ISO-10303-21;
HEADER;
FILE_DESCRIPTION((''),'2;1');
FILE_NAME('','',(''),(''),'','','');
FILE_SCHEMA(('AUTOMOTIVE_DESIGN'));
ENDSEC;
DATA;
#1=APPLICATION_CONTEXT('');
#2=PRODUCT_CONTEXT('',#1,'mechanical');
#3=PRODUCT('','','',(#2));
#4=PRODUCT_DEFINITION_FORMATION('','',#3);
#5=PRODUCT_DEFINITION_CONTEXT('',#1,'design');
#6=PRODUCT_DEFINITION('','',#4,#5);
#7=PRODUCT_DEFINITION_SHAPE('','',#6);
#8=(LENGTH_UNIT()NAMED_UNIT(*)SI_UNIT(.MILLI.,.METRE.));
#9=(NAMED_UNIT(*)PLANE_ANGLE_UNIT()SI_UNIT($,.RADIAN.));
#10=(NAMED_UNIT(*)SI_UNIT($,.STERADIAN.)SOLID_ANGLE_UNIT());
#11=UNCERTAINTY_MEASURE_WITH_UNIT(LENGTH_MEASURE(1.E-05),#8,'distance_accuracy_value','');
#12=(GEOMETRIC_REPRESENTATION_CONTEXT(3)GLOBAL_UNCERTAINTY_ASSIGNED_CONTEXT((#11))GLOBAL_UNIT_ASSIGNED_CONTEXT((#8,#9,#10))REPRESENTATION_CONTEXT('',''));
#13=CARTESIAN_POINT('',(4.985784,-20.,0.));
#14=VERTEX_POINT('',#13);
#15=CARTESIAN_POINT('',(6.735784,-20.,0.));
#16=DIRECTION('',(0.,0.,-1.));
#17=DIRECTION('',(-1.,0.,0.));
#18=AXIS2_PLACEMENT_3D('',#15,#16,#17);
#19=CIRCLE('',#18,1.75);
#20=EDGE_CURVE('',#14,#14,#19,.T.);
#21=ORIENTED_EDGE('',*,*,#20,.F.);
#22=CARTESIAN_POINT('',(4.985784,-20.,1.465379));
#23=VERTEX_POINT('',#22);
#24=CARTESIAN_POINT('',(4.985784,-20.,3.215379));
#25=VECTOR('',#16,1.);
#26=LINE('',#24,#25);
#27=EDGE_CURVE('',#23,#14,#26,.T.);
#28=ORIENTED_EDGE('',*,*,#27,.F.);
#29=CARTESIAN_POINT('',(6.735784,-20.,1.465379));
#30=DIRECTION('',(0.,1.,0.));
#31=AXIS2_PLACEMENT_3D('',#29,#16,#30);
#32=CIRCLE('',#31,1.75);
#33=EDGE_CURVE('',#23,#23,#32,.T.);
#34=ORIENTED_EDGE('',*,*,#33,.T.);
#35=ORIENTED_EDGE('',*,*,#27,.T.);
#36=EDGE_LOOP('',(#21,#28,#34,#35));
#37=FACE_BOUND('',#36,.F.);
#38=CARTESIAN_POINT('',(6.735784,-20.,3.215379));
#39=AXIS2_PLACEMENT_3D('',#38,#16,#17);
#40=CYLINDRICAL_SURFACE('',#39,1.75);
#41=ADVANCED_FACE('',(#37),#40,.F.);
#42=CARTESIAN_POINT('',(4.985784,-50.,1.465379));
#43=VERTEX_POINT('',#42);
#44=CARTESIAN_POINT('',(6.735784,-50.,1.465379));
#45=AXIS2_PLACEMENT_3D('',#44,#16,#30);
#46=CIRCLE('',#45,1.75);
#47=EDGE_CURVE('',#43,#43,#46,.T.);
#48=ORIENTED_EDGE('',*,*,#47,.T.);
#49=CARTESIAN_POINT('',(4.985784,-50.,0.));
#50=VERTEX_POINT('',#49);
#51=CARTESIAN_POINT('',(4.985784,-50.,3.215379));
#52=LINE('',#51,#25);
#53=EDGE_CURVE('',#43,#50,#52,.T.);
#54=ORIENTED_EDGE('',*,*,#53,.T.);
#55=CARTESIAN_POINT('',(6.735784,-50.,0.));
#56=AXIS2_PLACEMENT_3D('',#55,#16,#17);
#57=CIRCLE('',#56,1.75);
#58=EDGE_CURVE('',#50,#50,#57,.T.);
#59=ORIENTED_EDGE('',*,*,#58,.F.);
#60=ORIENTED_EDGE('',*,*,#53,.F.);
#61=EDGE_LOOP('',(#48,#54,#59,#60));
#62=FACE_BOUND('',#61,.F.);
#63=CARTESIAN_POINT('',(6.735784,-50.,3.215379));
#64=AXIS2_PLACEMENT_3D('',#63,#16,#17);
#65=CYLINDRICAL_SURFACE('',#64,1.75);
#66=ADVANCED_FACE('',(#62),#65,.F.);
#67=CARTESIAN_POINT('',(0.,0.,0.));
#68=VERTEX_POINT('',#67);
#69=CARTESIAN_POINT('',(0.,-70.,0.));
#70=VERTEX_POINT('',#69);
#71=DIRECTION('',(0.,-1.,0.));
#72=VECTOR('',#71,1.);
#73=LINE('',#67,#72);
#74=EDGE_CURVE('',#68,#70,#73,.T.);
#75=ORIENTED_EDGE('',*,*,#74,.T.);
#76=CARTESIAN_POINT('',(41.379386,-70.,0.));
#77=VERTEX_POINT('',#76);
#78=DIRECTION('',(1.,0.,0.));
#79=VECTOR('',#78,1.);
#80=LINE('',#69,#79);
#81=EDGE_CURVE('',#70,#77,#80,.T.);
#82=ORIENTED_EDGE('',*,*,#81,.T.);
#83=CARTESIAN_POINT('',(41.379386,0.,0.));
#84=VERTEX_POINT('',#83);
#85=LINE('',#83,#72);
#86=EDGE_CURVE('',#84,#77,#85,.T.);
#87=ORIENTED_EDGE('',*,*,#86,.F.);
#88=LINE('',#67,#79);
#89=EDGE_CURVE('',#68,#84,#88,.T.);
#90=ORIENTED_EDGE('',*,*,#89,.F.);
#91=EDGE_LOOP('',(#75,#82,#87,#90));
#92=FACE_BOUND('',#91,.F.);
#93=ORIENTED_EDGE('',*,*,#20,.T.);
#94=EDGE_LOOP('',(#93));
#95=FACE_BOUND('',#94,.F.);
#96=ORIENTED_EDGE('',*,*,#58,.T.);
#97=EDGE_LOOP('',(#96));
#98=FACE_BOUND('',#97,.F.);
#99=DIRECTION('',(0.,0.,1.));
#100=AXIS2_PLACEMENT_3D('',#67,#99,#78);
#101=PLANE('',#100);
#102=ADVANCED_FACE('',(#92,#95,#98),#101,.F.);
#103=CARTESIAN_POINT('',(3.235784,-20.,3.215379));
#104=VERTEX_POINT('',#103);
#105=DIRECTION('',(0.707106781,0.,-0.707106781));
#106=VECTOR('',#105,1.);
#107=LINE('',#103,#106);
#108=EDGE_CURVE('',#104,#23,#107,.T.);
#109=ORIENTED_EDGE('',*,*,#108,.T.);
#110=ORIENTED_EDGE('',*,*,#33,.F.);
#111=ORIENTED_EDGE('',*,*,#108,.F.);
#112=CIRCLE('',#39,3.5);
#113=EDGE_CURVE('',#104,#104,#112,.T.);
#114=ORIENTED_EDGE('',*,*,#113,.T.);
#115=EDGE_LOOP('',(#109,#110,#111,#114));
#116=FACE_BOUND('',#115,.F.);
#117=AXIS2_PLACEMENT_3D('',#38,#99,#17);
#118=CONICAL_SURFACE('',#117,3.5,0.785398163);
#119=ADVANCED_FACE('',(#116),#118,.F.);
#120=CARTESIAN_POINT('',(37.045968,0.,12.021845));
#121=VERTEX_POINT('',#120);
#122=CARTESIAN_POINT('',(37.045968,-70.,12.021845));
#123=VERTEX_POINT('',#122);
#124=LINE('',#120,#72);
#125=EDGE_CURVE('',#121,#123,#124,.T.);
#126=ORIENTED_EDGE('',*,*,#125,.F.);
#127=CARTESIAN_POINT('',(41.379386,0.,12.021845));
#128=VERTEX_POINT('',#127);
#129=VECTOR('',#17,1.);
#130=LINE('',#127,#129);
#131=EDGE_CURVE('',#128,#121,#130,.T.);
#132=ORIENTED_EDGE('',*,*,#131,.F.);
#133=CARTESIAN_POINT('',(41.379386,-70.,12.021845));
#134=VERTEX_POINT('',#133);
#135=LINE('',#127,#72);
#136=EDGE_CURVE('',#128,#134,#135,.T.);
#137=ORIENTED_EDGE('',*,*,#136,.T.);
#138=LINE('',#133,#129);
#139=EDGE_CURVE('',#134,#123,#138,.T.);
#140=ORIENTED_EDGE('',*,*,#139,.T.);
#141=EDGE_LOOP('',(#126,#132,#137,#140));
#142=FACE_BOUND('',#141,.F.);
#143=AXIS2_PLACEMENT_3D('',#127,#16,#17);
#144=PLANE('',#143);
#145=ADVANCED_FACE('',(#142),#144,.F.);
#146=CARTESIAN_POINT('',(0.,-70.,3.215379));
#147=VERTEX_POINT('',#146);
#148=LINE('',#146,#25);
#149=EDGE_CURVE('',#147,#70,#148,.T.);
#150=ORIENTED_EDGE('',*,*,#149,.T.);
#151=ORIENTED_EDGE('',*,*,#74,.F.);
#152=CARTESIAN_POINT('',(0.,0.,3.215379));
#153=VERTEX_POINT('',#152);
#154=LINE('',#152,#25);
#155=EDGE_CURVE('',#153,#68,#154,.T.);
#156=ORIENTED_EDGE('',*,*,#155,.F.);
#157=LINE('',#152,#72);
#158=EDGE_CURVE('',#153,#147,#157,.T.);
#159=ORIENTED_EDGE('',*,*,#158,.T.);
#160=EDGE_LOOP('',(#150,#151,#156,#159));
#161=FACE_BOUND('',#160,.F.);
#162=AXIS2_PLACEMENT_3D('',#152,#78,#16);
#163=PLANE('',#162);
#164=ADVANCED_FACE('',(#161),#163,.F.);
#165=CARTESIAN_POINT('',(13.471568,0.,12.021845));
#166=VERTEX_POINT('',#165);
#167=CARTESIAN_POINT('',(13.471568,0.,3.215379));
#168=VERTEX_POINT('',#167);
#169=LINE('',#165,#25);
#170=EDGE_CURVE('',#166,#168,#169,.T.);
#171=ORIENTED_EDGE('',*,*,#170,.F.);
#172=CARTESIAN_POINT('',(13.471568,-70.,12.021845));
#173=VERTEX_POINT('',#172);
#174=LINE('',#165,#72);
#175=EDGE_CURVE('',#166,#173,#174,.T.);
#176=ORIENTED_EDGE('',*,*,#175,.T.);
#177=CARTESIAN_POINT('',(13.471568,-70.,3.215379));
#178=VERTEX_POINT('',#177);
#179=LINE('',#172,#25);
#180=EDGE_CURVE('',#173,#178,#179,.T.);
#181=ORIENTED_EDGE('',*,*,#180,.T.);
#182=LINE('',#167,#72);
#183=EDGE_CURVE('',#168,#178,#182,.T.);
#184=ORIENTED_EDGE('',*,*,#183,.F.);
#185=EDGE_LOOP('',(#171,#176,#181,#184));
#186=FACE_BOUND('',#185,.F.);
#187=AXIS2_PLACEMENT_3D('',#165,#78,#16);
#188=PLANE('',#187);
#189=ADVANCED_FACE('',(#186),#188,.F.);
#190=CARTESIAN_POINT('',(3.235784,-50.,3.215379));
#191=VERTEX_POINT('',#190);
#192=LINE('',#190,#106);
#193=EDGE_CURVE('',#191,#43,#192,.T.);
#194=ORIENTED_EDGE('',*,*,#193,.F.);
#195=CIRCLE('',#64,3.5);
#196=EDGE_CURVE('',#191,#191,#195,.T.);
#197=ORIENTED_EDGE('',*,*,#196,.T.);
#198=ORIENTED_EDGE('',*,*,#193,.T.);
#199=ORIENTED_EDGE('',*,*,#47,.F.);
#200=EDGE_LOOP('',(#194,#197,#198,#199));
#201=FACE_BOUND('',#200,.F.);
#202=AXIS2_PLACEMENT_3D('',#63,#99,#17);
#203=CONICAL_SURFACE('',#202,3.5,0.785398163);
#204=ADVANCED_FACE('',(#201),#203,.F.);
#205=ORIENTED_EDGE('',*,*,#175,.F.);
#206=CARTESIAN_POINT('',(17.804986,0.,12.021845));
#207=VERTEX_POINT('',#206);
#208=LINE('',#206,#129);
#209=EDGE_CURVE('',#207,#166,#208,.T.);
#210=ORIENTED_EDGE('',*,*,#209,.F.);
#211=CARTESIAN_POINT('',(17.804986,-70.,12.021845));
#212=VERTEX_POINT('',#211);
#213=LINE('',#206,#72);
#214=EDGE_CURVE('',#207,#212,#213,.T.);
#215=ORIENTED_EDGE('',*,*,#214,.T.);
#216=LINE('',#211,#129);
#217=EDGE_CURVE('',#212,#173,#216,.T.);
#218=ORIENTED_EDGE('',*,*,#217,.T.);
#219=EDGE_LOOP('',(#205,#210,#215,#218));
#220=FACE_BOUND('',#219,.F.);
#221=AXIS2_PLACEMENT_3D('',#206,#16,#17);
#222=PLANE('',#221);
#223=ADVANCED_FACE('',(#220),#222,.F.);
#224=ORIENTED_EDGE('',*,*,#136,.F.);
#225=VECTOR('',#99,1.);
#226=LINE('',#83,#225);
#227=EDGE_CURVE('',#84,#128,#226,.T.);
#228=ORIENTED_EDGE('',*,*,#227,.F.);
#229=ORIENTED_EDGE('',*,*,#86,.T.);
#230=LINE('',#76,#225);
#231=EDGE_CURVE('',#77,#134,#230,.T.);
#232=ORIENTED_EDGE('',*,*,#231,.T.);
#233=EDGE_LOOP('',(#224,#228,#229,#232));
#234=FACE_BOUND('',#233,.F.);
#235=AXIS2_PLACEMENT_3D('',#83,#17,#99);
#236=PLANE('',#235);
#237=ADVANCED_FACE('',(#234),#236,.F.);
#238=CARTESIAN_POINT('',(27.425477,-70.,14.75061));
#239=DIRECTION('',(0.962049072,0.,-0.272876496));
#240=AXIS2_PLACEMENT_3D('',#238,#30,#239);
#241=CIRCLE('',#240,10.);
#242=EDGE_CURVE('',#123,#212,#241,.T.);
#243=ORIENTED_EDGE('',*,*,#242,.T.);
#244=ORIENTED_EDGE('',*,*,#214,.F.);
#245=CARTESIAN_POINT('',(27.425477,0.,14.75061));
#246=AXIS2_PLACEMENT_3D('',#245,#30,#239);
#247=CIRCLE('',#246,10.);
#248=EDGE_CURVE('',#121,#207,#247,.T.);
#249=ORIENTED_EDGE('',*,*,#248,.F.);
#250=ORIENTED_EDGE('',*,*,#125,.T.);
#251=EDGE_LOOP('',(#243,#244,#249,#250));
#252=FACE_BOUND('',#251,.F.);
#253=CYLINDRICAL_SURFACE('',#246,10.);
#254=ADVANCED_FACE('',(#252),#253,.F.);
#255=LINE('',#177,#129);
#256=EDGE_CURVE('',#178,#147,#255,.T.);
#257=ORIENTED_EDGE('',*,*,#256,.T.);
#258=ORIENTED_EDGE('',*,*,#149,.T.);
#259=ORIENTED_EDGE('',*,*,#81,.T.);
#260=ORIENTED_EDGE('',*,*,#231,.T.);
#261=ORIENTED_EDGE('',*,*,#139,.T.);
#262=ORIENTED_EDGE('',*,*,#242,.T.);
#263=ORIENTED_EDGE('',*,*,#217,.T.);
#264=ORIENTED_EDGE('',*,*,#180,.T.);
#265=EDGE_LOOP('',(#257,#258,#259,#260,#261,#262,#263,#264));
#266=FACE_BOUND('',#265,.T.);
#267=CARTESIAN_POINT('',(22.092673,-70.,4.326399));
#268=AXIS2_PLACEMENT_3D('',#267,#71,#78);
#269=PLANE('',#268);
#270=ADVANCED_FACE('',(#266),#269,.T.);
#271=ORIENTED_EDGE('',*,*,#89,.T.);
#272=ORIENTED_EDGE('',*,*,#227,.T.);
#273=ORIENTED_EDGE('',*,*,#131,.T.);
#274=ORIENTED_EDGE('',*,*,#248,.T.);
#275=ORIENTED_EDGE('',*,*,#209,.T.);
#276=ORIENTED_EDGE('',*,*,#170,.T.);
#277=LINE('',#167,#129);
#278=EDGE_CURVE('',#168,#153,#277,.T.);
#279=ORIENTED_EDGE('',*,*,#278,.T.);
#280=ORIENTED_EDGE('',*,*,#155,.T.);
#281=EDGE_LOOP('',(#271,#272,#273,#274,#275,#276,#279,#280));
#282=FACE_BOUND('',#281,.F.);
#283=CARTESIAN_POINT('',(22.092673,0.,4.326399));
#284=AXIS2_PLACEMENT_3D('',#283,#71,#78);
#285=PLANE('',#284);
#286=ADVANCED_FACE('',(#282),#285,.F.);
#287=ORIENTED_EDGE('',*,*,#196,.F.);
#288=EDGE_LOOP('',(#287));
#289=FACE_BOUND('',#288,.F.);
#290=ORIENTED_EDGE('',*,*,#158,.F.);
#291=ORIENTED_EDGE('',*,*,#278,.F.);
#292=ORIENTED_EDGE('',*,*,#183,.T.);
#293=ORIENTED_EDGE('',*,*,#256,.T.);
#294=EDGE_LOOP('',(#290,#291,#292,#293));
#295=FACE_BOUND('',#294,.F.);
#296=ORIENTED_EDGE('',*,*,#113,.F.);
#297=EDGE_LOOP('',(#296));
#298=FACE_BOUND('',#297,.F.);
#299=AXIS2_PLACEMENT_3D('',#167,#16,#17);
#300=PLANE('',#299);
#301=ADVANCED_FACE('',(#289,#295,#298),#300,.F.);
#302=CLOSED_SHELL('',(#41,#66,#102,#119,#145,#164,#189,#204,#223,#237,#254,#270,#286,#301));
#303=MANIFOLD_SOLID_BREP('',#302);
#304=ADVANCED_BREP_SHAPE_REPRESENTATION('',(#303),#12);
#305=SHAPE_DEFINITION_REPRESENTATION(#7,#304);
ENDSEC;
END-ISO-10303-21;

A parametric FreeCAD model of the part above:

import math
import FreeCAD as App
import Part
import Sketcher

V = App.Vector
Q = App.Units.Quantity

doc = App.newDocument("Part")
body = doc.addObject("PartDesign::Body", "Body")

sketch1 = body.newObject("Sketcher::SketchObject", "Sketch")
sketch1.AttachmentSupport = (doc.getObject("XZ_Plane"), [""])
sketch1.MapMode = "FlatFace"
sketch1.addGeometry([
    Part.LineSegment(V(0, 3.2, 0), V(0, 0, 0)),
    Part.LineSegment(V(0, 0, 0), V(41.4, 0, 0)),
    Part.LineSegment(V(41.4, 0, 0), V(41.4, 12, 0)),
    Part.LineSegment(V(41.4, 12, 0), V(37, 12, 0)),
    Part.ArcOfCircle(Part.Circle(V(27.4, 14.8, 0), V(0, 0, 1), 10), math.radians(-164), math.radians(-16)),
    Part.LineSegment(V(17.8, 12, 0), V(13.5, 12, 0)),
    Part.LineSegment(V(13.5, 12, 0), V(13.5, 3.2, 0)),
    Part.LineSegment(V(13.5, 3.2, 0), V(0, 3.2, 0)),
], False)
sketch1.addConstraint([
    Sketcher.Constraint("Coincident", 0, 2, 1, 1),
    Sketcher.Constraint("Coincident", 1, 2, 2, 1),
    Sketcher.Constraint("Coincident", 2, 2, 3, 1),
    Sketcher.Constraint("Coincident", 3, 2, 4, 2),
    Sketcher.Constraint("Coincident", 4, 1, 5, 1),
    Sketcher.Constraint("Coincident", 5, 2, 6, 1),
    Sketcher.Constraint("Coincident", 6, 2, 7, 1),
    Sketcher.Constraint("Coincident", 7, 2, 0, 1),
    Sketcher.Constraint("Vertical", 0),
    Sketcher.Constraint("Horizontal", 1),
    Sketcher.Constraint("Vertical", 2),
    Sketcher.Constraint("Horizontal", 3),
    Sketcher.Constraint("Horizontal", 5),
    Sketcher.Constraint("Vertical", 6),
    Sketcher.Constraint("Horizontal", 7),
    Sketcher.Constraint("Coincident", 0, 2, -1, 1),
    Sketcher.Constraint("Horizontal", 3, 2, 4, 1),
    Sketcher.Constraint("Equal", 3, 5),
    Sketcher.Constraint("Radius", 4, Q("10 mm")),
    Sketcher.Constraint("DistanceX", 3, 2, 3, 1, Q("4.333418 mm")),
    Sketcher.Constraint("DistanceY", 0, 2, 0, 1, Q("3.215379 mm")),
    Sketcher.Constraint("DistanceX", 4, 1, 2, 2, Q("23.5744 mm")),
    Sketcher.Constraint("DistanceX", 1, 1, 1, 2, Q("41.379386 mm")),
    Sketcher.Constraint("DistanceY", 2, 1, 2, 2, Q("12.021845 mm")),
])
pad1 = body.newObject("PartDesign::Pad", "Pad")
pad1.Profile = sketch1
pad1.Length = 70

sketch2 = body.newObject("Sketcher::SketchObject", "Sketch001")
sketch2.AttachmentSupport = (doc.getObject("XY_Plane"), [""])
sketch2.MapMode = "FlatFace"
sketch2.AttachmentOffset = App.Placement(V(0, 0, 3.215379), App.Rotation())
sketch2.addGeometry([
    Part.Circle(V(6.7, -20, 0), V(0, 0, 1), 1.8),
    Part.Circle(V(6.7, -50, 0), V(0, 0, 1), 1.8),
], False)
sketch2.addConstraint([
    Sketcher.Constraint("Equal", 0, 1),
    Sketcher.Constraint("Vertical", 0, 3, 1, 3),
    Sketcher.Constraint("Diameter", 0, Q("3.5 mm")),
    Sketcher.Constraint("DistanceY", 0, 3, -1, 1, Q("20 mm")),
    Sketcher.Constraint("DistanceY", 1, 3, -1, 1, Q("50 mm")),
    Sketcher.Constraint("DistanceX", -1, 1, 0, 3, Q("6.735784 mm")),
])
doc.recompute()
hole = body.newObject("PartDesign::Hole", "Hole")
hole.Profile = sketch2
hole.ThreadType = "None"
hole.Diameter = 3.5
hole.DepthType = "ThroughAll"
hole.HoleCutType = "Countersink"
hole.HoleCutDiameter = 7
hole.HoleCutCountersinkAngle = 90

doc.recompute()
